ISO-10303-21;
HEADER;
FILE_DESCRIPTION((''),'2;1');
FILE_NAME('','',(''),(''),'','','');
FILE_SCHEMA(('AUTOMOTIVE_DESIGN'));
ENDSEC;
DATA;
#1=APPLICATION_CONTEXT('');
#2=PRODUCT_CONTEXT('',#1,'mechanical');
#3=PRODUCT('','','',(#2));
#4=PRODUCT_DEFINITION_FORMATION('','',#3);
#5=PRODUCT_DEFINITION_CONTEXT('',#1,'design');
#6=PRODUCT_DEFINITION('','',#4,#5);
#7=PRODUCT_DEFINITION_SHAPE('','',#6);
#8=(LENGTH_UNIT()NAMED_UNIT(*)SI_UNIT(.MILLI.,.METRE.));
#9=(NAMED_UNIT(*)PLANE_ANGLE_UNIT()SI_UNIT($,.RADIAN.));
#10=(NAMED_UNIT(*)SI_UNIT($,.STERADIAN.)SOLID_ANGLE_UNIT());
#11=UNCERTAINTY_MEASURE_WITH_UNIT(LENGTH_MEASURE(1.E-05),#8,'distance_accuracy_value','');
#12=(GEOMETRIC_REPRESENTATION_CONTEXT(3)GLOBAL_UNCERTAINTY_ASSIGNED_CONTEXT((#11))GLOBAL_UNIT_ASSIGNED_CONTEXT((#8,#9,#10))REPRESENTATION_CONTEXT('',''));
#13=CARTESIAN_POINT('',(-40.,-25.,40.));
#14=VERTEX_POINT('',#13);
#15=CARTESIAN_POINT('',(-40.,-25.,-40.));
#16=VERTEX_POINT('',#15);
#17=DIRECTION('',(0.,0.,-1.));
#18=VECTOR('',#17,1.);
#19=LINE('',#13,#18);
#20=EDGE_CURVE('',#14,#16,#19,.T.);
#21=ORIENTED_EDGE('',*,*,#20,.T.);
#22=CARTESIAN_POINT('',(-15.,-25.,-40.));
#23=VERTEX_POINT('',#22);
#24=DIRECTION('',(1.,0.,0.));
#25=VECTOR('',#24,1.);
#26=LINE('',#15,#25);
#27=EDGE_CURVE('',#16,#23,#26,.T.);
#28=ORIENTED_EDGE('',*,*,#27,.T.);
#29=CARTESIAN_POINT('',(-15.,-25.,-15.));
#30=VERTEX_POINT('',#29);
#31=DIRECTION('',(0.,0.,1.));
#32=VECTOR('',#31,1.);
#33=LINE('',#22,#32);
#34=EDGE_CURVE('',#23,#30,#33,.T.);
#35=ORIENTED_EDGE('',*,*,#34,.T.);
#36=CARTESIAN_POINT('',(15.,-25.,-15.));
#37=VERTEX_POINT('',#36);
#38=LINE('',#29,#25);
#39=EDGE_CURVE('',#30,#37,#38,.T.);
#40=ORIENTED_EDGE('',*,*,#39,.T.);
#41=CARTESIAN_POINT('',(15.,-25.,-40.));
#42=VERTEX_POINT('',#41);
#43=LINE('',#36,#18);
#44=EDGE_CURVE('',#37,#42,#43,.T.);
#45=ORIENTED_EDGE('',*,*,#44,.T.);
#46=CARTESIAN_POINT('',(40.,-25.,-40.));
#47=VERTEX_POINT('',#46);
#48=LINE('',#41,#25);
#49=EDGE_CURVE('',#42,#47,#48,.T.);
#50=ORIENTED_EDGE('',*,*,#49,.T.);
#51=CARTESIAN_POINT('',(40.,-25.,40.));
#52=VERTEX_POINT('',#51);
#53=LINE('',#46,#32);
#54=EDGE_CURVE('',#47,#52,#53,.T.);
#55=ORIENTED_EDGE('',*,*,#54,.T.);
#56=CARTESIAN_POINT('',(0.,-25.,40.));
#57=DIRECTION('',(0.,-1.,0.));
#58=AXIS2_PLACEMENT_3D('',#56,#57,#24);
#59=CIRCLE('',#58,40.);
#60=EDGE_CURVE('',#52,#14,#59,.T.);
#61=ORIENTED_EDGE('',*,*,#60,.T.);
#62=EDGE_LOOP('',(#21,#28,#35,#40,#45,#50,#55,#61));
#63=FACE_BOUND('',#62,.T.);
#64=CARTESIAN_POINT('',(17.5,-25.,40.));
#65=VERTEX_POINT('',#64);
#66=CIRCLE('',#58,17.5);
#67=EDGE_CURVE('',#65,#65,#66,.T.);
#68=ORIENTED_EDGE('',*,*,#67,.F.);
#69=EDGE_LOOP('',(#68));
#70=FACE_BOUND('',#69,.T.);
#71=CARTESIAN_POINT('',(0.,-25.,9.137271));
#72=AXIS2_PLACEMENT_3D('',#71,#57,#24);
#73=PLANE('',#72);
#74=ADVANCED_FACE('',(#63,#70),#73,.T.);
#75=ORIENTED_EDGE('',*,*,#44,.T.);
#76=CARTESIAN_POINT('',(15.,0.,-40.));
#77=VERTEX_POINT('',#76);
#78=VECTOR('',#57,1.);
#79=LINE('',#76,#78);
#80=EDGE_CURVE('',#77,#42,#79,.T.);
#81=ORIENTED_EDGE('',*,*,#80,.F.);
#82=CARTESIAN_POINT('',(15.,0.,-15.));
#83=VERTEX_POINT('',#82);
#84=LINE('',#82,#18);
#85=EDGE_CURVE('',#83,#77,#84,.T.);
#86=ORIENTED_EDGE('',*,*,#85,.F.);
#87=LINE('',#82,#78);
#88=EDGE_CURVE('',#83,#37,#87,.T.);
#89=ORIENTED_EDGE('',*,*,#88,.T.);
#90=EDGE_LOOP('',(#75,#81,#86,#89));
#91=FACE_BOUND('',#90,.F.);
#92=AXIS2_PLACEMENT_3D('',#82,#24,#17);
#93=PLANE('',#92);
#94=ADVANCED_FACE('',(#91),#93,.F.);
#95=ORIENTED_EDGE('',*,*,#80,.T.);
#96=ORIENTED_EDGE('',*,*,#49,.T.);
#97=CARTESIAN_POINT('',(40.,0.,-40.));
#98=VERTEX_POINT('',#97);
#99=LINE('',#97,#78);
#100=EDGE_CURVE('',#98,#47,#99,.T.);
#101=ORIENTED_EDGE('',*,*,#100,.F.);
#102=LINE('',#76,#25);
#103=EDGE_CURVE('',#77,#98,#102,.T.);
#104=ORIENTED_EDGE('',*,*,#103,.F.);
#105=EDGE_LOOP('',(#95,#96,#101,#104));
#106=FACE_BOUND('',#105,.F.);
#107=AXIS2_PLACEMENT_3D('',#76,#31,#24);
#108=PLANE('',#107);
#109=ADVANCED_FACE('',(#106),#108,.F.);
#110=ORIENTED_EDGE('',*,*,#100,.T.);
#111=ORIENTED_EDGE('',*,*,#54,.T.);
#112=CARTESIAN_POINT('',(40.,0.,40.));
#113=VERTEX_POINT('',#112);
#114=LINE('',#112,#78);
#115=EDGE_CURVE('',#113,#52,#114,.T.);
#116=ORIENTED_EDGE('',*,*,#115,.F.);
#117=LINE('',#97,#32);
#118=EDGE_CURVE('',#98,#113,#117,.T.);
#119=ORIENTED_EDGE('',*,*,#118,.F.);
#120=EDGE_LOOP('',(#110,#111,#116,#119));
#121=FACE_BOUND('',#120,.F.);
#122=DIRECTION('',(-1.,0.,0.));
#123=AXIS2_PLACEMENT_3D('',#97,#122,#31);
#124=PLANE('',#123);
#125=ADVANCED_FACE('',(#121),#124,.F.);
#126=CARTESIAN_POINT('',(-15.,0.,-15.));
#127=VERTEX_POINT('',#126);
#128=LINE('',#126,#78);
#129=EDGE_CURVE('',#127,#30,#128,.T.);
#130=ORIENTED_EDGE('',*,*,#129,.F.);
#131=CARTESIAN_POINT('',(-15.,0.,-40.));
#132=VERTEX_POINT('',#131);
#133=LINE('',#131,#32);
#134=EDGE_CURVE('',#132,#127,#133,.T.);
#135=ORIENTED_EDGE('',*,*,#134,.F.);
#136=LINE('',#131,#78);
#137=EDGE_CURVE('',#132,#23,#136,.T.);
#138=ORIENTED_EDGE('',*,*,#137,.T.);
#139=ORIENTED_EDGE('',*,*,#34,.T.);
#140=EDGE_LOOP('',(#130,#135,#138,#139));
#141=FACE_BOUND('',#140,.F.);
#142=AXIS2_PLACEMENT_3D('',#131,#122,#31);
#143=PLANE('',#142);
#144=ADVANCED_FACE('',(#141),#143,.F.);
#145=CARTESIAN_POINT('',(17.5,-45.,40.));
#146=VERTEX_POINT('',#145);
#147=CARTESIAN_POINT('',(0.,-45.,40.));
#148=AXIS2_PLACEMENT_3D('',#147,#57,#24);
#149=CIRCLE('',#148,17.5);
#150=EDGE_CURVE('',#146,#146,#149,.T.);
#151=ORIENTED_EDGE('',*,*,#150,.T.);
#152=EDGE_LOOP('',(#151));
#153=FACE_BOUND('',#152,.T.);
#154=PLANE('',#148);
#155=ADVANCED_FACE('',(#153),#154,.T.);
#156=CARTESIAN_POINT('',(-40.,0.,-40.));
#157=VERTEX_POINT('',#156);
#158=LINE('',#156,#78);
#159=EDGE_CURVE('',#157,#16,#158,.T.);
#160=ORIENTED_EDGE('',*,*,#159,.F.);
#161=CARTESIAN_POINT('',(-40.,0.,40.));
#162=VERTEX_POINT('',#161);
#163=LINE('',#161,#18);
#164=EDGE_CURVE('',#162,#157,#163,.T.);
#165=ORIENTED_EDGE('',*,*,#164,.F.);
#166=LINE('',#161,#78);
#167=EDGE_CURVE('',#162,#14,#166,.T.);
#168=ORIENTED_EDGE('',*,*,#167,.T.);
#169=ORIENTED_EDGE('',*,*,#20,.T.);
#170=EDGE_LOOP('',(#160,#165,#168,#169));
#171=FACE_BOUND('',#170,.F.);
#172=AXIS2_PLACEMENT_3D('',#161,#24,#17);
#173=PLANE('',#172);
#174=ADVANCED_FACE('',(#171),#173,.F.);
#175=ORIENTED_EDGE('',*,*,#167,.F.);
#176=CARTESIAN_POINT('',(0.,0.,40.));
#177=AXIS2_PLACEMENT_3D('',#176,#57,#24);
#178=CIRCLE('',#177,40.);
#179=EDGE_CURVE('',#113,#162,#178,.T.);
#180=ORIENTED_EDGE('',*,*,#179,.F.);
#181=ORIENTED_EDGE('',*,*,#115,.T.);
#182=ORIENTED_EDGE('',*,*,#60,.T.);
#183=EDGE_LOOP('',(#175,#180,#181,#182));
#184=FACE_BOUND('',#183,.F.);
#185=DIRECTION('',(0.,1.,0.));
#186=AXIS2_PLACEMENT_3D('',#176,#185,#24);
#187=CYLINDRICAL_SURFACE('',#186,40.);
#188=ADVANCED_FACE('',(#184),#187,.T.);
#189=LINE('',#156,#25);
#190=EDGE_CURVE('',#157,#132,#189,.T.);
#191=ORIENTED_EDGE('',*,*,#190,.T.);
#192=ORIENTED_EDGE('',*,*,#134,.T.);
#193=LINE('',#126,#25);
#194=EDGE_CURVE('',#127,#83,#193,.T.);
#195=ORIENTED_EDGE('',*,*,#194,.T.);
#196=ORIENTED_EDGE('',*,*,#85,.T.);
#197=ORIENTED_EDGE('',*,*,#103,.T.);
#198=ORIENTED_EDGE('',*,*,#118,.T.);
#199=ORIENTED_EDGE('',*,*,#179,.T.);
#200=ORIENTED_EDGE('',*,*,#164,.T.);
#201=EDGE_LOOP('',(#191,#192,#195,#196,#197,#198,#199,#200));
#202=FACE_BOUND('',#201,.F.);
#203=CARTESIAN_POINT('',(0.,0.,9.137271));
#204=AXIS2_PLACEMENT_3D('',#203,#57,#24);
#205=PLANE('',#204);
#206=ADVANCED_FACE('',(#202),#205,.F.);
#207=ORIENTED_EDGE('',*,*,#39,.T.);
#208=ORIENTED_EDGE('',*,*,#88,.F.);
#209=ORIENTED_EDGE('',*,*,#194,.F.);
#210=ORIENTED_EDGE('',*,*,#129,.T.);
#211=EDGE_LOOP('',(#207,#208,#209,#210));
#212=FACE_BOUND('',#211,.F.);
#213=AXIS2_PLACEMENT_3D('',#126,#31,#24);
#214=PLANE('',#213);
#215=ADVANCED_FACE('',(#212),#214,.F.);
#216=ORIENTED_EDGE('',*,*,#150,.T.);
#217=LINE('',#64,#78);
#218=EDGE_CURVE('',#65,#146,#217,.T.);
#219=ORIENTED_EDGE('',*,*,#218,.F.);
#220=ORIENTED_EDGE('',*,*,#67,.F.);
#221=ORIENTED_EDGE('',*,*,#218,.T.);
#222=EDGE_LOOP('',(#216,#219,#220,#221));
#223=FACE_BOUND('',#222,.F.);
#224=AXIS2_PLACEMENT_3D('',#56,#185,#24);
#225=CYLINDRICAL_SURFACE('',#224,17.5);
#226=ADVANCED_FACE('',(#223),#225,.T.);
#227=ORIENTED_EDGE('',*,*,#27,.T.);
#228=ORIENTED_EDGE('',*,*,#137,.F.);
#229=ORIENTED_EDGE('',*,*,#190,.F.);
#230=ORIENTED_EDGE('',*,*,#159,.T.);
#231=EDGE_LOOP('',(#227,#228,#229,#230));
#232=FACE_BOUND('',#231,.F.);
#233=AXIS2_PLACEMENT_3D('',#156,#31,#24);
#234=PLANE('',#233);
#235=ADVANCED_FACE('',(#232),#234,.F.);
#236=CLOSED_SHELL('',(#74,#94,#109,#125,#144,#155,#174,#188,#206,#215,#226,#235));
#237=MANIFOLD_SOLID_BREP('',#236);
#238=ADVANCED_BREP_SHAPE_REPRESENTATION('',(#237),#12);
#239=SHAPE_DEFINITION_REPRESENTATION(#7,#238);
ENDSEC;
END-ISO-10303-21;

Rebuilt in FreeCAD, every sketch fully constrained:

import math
import FreeCAD as App
import Part
import Sketcher

V = App.Vector
Q = App.Units.Quantity

doc = App.newDocument("Part")
params = doc.addObject("Spreadsheet::Sheet", "Params")
for row, (alias, value) in enumerate([
    ("sketch1_radius", "40 mm"),
    ("sketch1_width", "25 mm"),
    ("sketch1_height", "80 mm"),
    ("pad1_length", "25 mm"),
    ("sketch2_diameter", "35 mm"),
    ("pad2_length", "20 mm"),
], start=1):
    params.set(f"A{row}", alias)
    params.set(f"B{row}", "=" + value)
    params.setAlias(f"B{row}", alias)

body = doc.addObject("PartDesign::Body", "Body")

sketch1 = doc.addObject("Sketcher::SketchObject", "Sketch")
body.addObject(sketch1)
sketch1.AttachmentSupport = (doc.XZ_Plane, [""])
sketch1.MapMode = "FlatFace"
sketch1.addGeometry([
    Part.LineSegment(V(15, -40, 0), V(40, -40, 0)),
    Part.LineSegment(V(40, -40, 0), V(40, 40, 0)),
    Part.ArcOfCircle(Part.Circle(V(0, 40, 0), V(0, 0, 1), 40), math.radians(0), math.radians(180)),
    Part.LineSegment(V(-40, 40, 0), V(-40, -40, 0)),
    Part.LineSegment(V(-40, -40, 0), V(-15, -40, 0)),
    Part.LineSegment(V(-15, -40, 0), V(-15, -15, 0)),
    Part.LineSegment(V(-15, -15, 0), V(15, -15, 0)),
    Part.LineSegment(V(15, -15, 0), V(15, -40, 0)),
], False)
sketch1.addConstraint([
    Sketcher.Constraint("Coincident", 0, 2, 1, 1),
    Sketcher.Constraint("Tangent", 1, 2, 2, 1),
    Sketcher.Constraint("Tangent", 2, 2, 3, 1),
    Sketcher.Constraint("Coincident", 3, 2, 4, 1),
    Sketcher.Constraint("Coincident", 4, 2, 5, 1),
    Sketcher.Constraint("Coincident", 5, 2, 6, 1),
    Sketcher.Constraint("Coincident", 6, 2, 7, 1),
    Sketcher.Constraint("Coincident", 7, 2, 0, 1),
    Sketcher.Constraint("Horizontal", 0),
    Sketcher.Constraint("Vertical", 1),
    Sketcher.Constraint("Vertical", 3),
    Sketcher.Constraint("Horizontal", 4),
    Sketcher.Constraint("Vertical", 5),
    Sketcher.Constraint("Horizontal", 6),
    Sketcher.Constraint("Vertical", 7),
    Sketcher.Constraint("Symmetric", 0, 2, 2, 2, -1, 1),
    Sketcher.Constraint("Symmetric", 4, 2, 7, 2, -2),
    Sketcher.Constraint("Equal", 4, 5),
    Sketcher.Constraint("Radius", 2, Q("40 mm")),
    Sketcher.Constraint("DistanceX", 0, 1, 0, 2, Q("25 mm")),
    Sketcher.Constraint("DistanceY", 1, 1, 1, 2, Q("80 mm")),
])
sketch1.setExpression("Constraints[18]", "Params.sketch1_radius")
sketch1.setExpression("Constraints[19]", "Params.sketch1_width")
sketch1.setExpression("Constraints[20]", "Params.sketch1_height")
pad1 = doc.addObject("PartDesign::Pad", "Pad")
body.addObject(pad1)
pad1.Profile = sketch1
pad1.setExpression("Length", "Params.pad1_length")

sketch2 = doc.addObject("Sketcher::SketchObject", "Sketch001")
body.addObject(sketch2)
sketch2.AttachmentSupport = (doc.XZ_Plane, [""])
sketch2.MapMode = "FlatFace"
sketch2.AttachmentOffset = App.Placement(V(0, 0, 25), App.Rotation())
sketch2.addGeometry(Part.Circle(V(0, 40, 0), V(0, 0, 1), 17.5), False)
sketch2.addConstraint([
    Sketcher.Constraint("PointOnObject", 0, 3, -2),
    Sketcher.Constraint("Diameter", 0, Q("35 mm")),
    Sketcher.Constraint("DistanceY", -1, 1, 0, 3, Q("40 mm")),
])
sketch2.setExpression("Constraints[1]", "Params.sketch2_diameter")
pad2 = doc.addObject("PartDesign::Pad", "Pad001")
body.addObject(pad2)
pad2.Profile = sketch2
pad2.setExpression("Length", "Params.pad2_length")

doc.recompute()
